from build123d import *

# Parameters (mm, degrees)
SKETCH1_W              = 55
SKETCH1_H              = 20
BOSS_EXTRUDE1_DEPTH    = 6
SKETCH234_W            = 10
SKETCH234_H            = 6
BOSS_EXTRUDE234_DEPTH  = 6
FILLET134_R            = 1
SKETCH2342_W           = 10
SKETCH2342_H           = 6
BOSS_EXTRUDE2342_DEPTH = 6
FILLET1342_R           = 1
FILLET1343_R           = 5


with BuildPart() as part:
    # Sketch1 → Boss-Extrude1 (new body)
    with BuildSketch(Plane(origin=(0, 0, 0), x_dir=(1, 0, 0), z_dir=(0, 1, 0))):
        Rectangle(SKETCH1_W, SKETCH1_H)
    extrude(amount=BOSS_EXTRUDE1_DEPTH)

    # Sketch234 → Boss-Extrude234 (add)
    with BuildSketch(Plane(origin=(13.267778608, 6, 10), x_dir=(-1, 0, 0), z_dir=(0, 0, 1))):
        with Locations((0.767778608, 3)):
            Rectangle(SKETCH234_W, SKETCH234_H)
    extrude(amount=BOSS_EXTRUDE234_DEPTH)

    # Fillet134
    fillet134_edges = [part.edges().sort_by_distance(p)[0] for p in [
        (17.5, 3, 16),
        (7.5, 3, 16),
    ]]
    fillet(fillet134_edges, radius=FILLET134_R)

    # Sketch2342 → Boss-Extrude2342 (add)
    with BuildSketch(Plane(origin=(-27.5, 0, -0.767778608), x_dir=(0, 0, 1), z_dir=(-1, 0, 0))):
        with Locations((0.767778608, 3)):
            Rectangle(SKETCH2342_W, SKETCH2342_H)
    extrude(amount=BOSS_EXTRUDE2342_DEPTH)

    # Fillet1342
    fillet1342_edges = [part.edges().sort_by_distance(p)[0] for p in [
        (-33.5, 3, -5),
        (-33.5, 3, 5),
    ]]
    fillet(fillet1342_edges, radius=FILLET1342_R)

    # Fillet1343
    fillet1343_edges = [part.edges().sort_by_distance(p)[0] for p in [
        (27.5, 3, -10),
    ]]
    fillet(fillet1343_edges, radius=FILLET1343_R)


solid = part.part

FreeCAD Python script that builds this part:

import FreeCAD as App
import Part
import Sketcher


def edges_at(feature, points):
    """Names of the edges that pass closest to the given points."""
    edges = feature.Shape.Edges
    near = lambda p: min(range(len(edges)), key=lambda i: edges[i].distToShape(Part.Vertex(*p))[0])
    return sorted({f"Edge{near(p) + 1}" for p in points})


def add_polygon(sketch, points):
    """Adds a closed chain of lines whose ends are joined by coincident constraints."""
    first, n = sketch.GeometryCount, len(points)
    for a, b in zip(points, points[1:] + points[:1]):
        sketch.addGeometry(Part.LineSegment(App.Vector(*a, 0), App.Vector(*b, 0)), False)
    for i in range(n):
        sketch.addConstraint(Sketcher.Constraint("Coincident", first + i, 2, first + (i + 1) % n, 1))

doc = App.newDocument("Part")
body = doc.addObject("PartDesign::Body", "Body")

sketch1 = body.newObject("Sketcher::SketchObject", "Sketch")
sketch1.AttachmentSupport = (doc.getObject("XZ_Plane"), [""])
sketch1.MapMode = "FlatFace"
add_polygon(sketch1, [(-28, -10), (-28, 10), (28, 10), (28, -10)])
sketch1.addConstraint([
    Sketcher.Constraint("Vertical", 0),
    Sketcher.Constraint("Horizontal", 1),
    Sketcher.Constraint("Vertical", 2),
    Sketcher.Constraint("Horizontal", 3),
    Sketcher.Constraint("Symmetric", 0, 2, 2, 2, -1, 1),
    Sketcher.Constraint("DistanceX", 1, 1, 1, 2, 55.0),
    Sketcher.Constraint("DistanceY", 0, 1, 0, 2, 20.0),
])
pad1 = body.newObject("PartDesign::Pad", "Pad")
pad1.Profile = sketch1
pad1.Length = 6
pad1.Reversed = True

sketch2 = body.newObject("Sketcher::SketchObject", "Sketch001")
sketch2.AttachmentSupport = (doc.getObject("XY_Plane"), [""])
sketch2.MapMode = "FlatFace"
sketch2.AttachmentOffset = App.Placement(App.Vector(0, 0, 10), App.Rotation())
add_polygon(sketch2, [(18, 0), (18, 6), (8, 6), (8, 0)])
sketch2.addConstraint([
    Sketcher.Constraint("Vertical", 0),
    Sketcher.Constraint("Horizontal", 1),
    Sketcher.Constraint("Vertical", 2),
    Sketcher.Constraint("Horizontal", 3),
    Sketcher.Constraint("PointOnObject", 2, 2, -1),
    Sketcher.Constraint("DistanceX", 1, 2, 1, 1, 10.0),
    Sketcher.Constraint("DistanceY", 0, 1, 0, 2, 6.0),
    Sketcher.Constraint("DistanceX", -1, 1, 0, 2, 17.5),
])
pad2 = body.newObject("PartDesign::Pad", "Pad001")
pad2.Profile = sketch2
pad2.Length = 6
doc.recompute()

fillet = body.newObject("PartDesign::Fillet", "Fillet")
fillet.Base = (pad2, edges_at(pad2, [(17.5, 3, 16), (7.5, 3, 16)]))
fillet.Radius = 1

sketch3 = body.newObject("Sketcher::SketchObject", "Sketch002")
sketch3.AttachmentSupport = (doc.getObject("YZ_Plane"), [""])
sketch3.MapMode = "FlatFace"
sketch3.AttachmentOffset = App.Placement(App.Vector(0, 0, -27.5), App.Rotation())
add_polygon(sketch3, [(6, -5), (0, -5), (0, 5), (6, 5)])
sketch3.addConstraint([
    Sketcher.Constraint("Horizontal", 0),
    Sketcher.Constraint("Vertical", 1),
    Sketcher.Constraint("Horizontal", 2),
    Sketcher.Constraint("Vertical", 3),
    Sketcher.Constraint("Symmetric", 0, 2, 1, 2, -1, 1),
    Sketcher.Constraint("DistanceX", 0, 2, 0, 1, 6.0),
    Sketcher.Constraint("DistanceY", 1, 1, 1, 2, 10.0),
])
pad3 = body.newObject("PartDesign::Pad", "Pad002")
pad3.Profile = sketch3
pad3.Length = 6
pad3.Reversed = True
doc.recompute()

fillet2 = body.newObject("PartDesign::Fillet", "Fillet001")
fillet2.Base = (pad3, edges_at(pad3, [(-33.5, 3, -5), (-33.5, 3, 5)]))
fillet2.Radius = 1
doc.recompute()

fillet3 = body.newObject("PartDesign::Fillet", "Fillet002")
fillet3.Base = (fillet2, edges_at(fillet2, [(27.5, 3, -10)]))
fillet3.Radius = 5

doc.recompute()
